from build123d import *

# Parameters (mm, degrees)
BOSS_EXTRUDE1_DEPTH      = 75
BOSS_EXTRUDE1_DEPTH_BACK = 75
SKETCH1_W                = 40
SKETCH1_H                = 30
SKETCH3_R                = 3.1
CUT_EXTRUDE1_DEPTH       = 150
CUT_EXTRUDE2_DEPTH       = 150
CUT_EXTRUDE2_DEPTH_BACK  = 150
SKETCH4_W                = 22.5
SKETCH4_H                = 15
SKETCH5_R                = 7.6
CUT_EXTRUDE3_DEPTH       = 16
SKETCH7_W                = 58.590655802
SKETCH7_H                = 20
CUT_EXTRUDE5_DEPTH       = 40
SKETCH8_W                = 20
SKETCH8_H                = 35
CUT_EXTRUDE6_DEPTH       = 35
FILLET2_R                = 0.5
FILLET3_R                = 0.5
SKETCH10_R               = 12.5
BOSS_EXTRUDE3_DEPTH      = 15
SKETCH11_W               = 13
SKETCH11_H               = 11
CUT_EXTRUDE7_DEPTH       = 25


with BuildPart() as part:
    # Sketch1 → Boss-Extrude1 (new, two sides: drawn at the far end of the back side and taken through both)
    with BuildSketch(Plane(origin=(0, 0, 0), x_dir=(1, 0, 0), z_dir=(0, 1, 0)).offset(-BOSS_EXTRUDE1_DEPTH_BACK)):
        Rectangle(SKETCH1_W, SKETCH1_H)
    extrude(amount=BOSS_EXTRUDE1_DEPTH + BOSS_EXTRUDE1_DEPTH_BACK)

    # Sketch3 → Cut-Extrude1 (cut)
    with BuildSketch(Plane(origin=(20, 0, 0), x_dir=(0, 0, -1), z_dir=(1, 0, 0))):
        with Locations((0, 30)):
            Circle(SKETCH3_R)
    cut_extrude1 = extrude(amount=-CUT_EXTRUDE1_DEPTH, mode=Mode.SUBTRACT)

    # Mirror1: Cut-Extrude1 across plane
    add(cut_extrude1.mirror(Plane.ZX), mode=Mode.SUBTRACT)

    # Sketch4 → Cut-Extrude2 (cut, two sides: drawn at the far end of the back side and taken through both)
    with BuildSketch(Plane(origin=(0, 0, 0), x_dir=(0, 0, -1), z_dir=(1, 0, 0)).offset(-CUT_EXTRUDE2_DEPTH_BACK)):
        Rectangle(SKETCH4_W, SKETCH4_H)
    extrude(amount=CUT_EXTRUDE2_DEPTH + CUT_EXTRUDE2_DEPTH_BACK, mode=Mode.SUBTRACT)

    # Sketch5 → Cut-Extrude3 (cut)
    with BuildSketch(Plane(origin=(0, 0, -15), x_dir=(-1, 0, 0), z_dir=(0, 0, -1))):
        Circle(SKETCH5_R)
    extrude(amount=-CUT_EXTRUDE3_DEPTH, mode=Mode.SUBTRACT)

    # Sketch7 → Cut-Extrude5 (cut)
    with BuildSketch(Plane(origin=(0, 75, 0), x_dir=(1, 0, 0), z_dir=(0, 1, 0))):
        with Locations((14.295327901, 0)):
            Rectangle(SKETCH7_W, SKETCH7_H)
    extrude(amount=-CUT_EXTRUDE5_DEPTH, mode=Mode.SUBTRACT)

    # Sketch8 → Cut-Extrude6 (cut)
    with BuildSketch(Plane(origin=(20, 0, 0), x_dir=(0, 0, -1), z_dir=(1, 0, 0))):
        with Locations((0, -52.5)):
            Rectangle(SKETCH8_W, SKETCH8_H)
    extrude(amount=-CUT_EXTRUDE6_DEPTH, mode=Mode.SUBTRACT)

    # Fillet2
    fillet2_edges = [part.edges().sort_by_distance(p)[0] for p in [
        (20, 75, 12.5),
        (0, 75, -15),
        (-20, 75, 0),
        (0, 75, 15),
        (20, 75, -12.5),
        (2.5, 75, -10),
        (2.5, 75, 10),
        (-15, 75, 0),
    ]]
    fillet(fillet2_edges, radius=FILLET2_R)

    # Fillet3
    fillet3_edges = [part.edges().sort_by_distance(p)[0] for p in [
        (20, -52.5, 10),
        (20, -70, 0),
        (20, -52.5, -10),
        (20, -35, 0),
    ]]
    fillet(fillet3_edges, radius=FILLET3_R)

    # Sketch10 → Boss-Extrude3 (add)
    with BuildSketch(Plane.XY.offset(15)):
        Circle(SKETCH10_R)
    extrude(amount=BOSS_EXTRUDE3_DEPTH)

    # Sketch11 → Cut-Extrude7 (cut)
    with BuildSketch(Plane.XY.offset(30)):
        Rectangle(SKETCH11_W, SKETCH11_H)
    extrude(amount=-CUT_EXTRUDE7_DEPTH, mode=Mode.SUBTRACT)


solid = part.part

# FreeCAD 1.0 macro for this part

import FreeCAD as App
import Part
import Sketcher
from FreeCAD import Vector


def edges_at(feature, points):
    """Names of the edges that pass closest to the given points."""
    edges = feature.Shape.Edges
    near = lambda p: min(range(len(edges)), key=lambda i: edges[i].distToShape(Part.Vertex(*p))[0])
    return sorted({f"Edge{near(p) + 1}" for p in points})

doc = App.newDocument("Part")
body = doc.addObject("PartDesign::Body", "Body")

sketch1 = body.newObject("Sketcher::SketchObject", "Sketch")
sketch1.AttachmentSupport = (doc.getObject("XZ_Plane"), [""])
sketch1.MapMode = "FlatFace"
sketch1.addGeometry([
    Part.LineSegment(Vector(-20, -15, 0), Vector(-20, 15, 0)),
    Part.LineSegment(Vector(-20, 15, 0), Vector(20, 15, 0)),
    Part.LineSegment(Vector(20, 15, 0), Vector(20, -15, 0)),
    Part.LineSegment(Vector(20, -15, 0), Vector(-20, -15, 0)),
], False)
sketch1.addConstraint([
    Sketcher.Constraint("Coincident", 0, 2, 1, 1),
    Sketcher.Constraint("Coincident", 1, 2, 2, 1),
    Sketcher.Constraint("Coincident", 2, 2, 3, 1),
    Sketcher.Constraint("Coincident", 3, 2, 0, 1),
    Sketcher.Constraint("Vertical", 0),
    Sketcher.Constraint("Horizontal", 1),
    Sketcher.Constraint("Vertical", 2),
    Sketcher.Constraint("Horizontal", 3),
    Sketcher.Constraint("Symmetric", 0, 2, 2, 2, -1, 1),
    Sketcher.Constraint("DistanceX", 1, 1, 1, 2, 40.0),
    Sketcher.Constraint("DistanceY", 0, 1, 0, 2, 30.0),
])
pad1 = body.newObject("PartDesign::Pad", "Pad")
pad1.Profile = sketch1
pad1.Type = "TwoLengths"
pad1.Length = 75
pad1.Length2 = 75
pad1.Reversed = True

sketch2 = body.newObject("Sketcher::SketchObject", "Sketch001")
sketch2.AttachmentSupport = (doc.getObject("YZ_Plane"), [""])
sketch2.MapMode = "FlatFace"
sketch2.AttachmentOffset = App.Placement(Vector(0, 0, 20), App.Rotation())
sketch2.addGeometry(Part.Circle(Vector(30, 0, 0), Vector(0, 0, 1), 3.1), False)
sketch2.addConstraint([
    Sketcher.Constraint("PointOnObject", 0, 3, -1),
    Sketcher.Constraint("Diameter", 0, 6.2),
    Sketcher.Constraint("DistanceX", -1, 1, 0, 3, 30.0),
])
pocket1 = body.newObject("PartDesign::Pocket", "Pocket")
pocket1.Profile = sketch2
pocket1.Length = 150
doc.recompute()

mirrored = body.newObject("PartDesign::Mirrored", "Mirrored")
mirrored.Originals = [pocket1]
mirrored.MirrorPlane = (doc.getObject("XZ_Plane"), [""])
body.Tip = mirrored

sketch3 = body.newObject("Sketcher::SketchObject", "Sketch002")
sketch3.AttachmentSupport = (doc.getObject("YZ_Plane"), [""])
sketch3.MapMode = "FlatFace"
sketch3.addGeometry([
    Part.LineSegment(Vector(8, 11, 0), Vector(-8, 11, 0)),
    Part.LineSegment(Vector(-8, 11, 0), Vector(-8, -11, 0)),
    Part.LineSegment(Vector(-8, -11, 0), Vector(8, -11, 0)),
    Part.LineSegment(Vector(8, -11, 0), Vector(8, 11, 0)),
], False)
sketch3.addConstraint([
    Sketcher.Constraint("Coincident", 0, 2, 1, 1),
    Sketcher.Constraint("Coincident", 1, 2, 2, 1),
    Sketcher.Constraint("Coincident", 2, 2, 3, 1),
    Sketcher.Constraint("Coincident", 3, 2, 0, 1),
    Sketcher.Constraint("Horizontal", 0),
    Sketcher.Constraint("Vertical", 1),
    Sketcher.Constraint("Horizontal", 2),
    Sketcher.Constraint("Vertical", 3),
    Sketcher.Constraint("Symmetric", 0, 2, 2, 2, -1, 1),
    Sketcher.Constraint("DistanceX", 0, 2, 0, 1, 15.0),
    Sketcher.Constraint("DistanceY", 1, 2, 1, 1, 22.5),
])
pocket2 = body.newObject("PartDesign::Pocket", "Pocket001")
pocket2.Profile = sketch3
pocket2.Type = "ThroughAll"
pocket2.Midplane = True

sketch4 = body.newObject("Sketcher::SketchObject", "Sketch003")
sketch4.AttachmentSupport = (doc.getObject("XY_Plane"), [""])
sketch4.MapMode = "FlatFace"
sketch4.AttachmentOffset = App.Placement(Vector(0, 0, -15), App.Rotation())
sketch4.addGeometry(Part.Circle(Vector(0, 0, 0), Vector(0, 0, 1), 8), False)
sketch4.addConstraint([
    Sketcher.Constraint("Coincident", 0, 3, -1, 1),
    Sketcher.Constraint("Diameter", 0, 15.2),
])
pocket3 = body.newObject("PartDesign::Pocket", "Pocket002")
pocket3.Profile = sketch4
pocket3.Length = 16
pocket3.Reversed = True

sketch5 = body.newObject("Sketcher::SketchObject", "Sketch004")
sketch5.AttachmentSupport = (doc.getObject("XZ_Plane"), [""])
sketch5.MapMode = "FlatFace"
sketch5.AttachmentOffset = App.Placement(Vector(0, 0, -75), App.Rotation())
sketch5.addGeometry([
    Part.LineSegment(Vector(-15, -10, 0), Vector(-15, 10, 0)),
    Part.LineSegment(Vector(-15, 10, 0), Vector(44, 10, 0)),
    Part.LineSegment(Vector(44, 10, 0), Vector(44, -10, 0)),
    Part.LineSegment(Vector(44, -10, 0), Vector(-15, -10, 0)),
], False)
sketch5.addConstraint([
    Sketcher.Constraint("Coincident", 0, 2, 1, 1),
    Sketcher.Constraint("Coincident", 1, 2, 2, 1),
    Sketcher.Constraint("Coincident", 2, 2, 3, 1),
    Sketcher.Constraint("Coincident", 3, 2, 0, 1),
    Sketcher.Constraint("Vertical", 0),
    Sketcher.Constraint("Horizontal", 1),
    Sketcher.Constraint("Vertical", 2),
    Sketcher.Constraint("Horizontal", 3),
    Sketcher.Constraint("DistanceY", 0, 1, 0, 2, 20.0),
    Sketcher.Constraint("DistanceX", 0, 2, -1, 1, 15.0),
    Sketcher.Constraint("DistanceY", -1, 1, 0, 2, 10.0),
    Sketcher.Constraint("DistanceX", 1, 1, 1, 2, 58.590656),
])
pocket4 = body.newObject("PartDesign::Pocket", "Pocket003")
pocket4.Profile = sketch5
pocket4.Length = 40
pocket4.Reversed = True

sketch6 = body.newObject("Sketcher::SketchObject", "Sketch005")
sketch6.AttachmentSupport = (doc.getObject("YZ_Plane"), [""])
sketch6.MapMode = "FlatFace"
sketch6.AttachmentOffset = App.Placement(Vector(0, 0, 20), App.Rotation())
sketch6.addGeometry([
    Part.LineSegment(Vector(-35, 10, 0), Vector(-70, 10, 0)),
    Part.LineSegment(Vector(-70, 10, 0), Vector(-70, -10, 0)),
    Part.LineSegment(Vector(-70, -10, 0), Vector(-35, -10, 0)),
    Part.LineSegment(Vector(-35, -10, 0), Vector(-35, 10, 0)),
], False)
sketch6.addConstraint([
    Sketcher.Constraint("Coincident", 0, 2, 1, 1),
    Sketcher.Constraint("Coincident", 1, 2, 2, 1),
    Sketcher.Constraint("Coincident", 2, 2, 3, 1),
    Sketcher.Constraint("Coincident", 3, 2, 0, 1),
    Sketcher.Constraint("Horizontal", 0),
    Sketcher.Constraint("Vertical", 1),
    Sketcher.Constraint("Horizontal", 2),
    Sketcher.Constraint("Vertical", 3),
    Sketcher.Constraint("DistanceX", 0, 2, 0, 1, 35.0),
    Sketcher.Constraint("DistanceY", 1, 2, 1, 1, 20.0),
    Sketcher.Constraint("DistanceX", 0, 2, -1, 1, 70.0),
    Sketcher.Constraint("DistanceY", -1, 1, 0, 2, 10.0),
])
pocket5 = body.newObject("PartDesign::Pocket", "Pocket004")
pocket5.Profile = sketch6
pocket5.Length = 35
doc.recompute()

fillet = body.newObject("PartDesign::Fillet", "Fillet")
fillet.Base = (pocket5, edges_at(pocket5, [
    (20, 75, 12.5),
    (0, 75, -15),
    (-20, 75, 0),
    (0, 75, 15),
    (20, 75, -12.5),
    (2.5, 75, -10),
    (2.5, 75, 10),
    (-15, 75, 0),
]))
fillet.Radius = 0.5
doc.recompute()

fillet2 = body.newObject("PartDesign::Fillet", "Fillet001")
fillet2.Base = (fillet, edges_at(fillet, [
    (20, -52.5, 10),
    (20, -70, 0),
    (20, -52.5, -10),
    (20, -35, 0),
]))
fillet2.Radius = 0.5

sketch7 = body.newObject("Sketcher::SketchObject", "Sketch006")
sketch7.AttachmentSupport = (doc.getObject("XY_Plane"), [""])
sketch7.MapMode = "FlatFace"
sketch7.AttachmentOffset = App.Placement(Vector(0, 0, 15), App.Rotation())
sketch7.addGeometry(Part.Circle(Vector(0, 0, 0), Vector(0, 0, 1), 12), False)
sketch7.addConstraint([
    Sketcher.Constraint("Coincident", 0, 3, -1, 1),
    Sketcher.Constraint("Diameter", 0, 25.0),
])
pad2 = body.newObject("PartDesign::Pad", "Pad001")
pad2.Profile = sketch7
pad2.Length = 15

sketch8 = body.newObject("Sketcher::SketchObject", "Sketch007")
sketch8.AttachmentSupport = (doc.getObject("XY_Plane"), [""])
sketch8.MapMode = "FlatFace"
sketch8.AttachmentOffset = App.Placement(Vector(0, 0, 30), App.Rotation())
sketch8.addGeometry([
    Part.LineSegment(Vector(-6, 6, 0), Vector(-6, -6, 0)),
    Part.LineSegment(Vector(-6, -6, 0), Vector(6, -6, 0)),
    Part.LineSegment(Vector(6, -6, 0), Vector(6, 6, 0)),
    Part.LineSegment(Vector(6, 6, 0), Vector(-6, 6, 0)),
], False)
sketch8.addConstraint([
    Sketcher.Constraint("Coincident", 0, 2, 1, 1),
    Sketcher.Constraint("Coincident", 1, 2, 2, 1),
    Sketcher.Constraint("Coincident", 2, 2, 3, 1),
    Sketcher.Constraint("Coincident", 3, 2, 0, 1),
    Sketcher.Constraint("Vertical", 0),
    Sketcher.Constraint("Horizontal", 1),
    Sketcher.Constraint("Vertical", 2),
    Sketcher.Constraint("Horizontal", 3),
    Sketcher.Constraint("Symmetric", 0, 2, 2, 2, -1, 1),
    Sketcher.Constraint("DistanceX", 1, 1, 1, 2, 13.0),
    Sketcher.Constraint("DistanceY", 0, 2, 0, 1, 11.0),
])
pocket6 = body.newObject("PartDesign::Pocket", "Pocket005")
pocket6.Profile = sketch8
pocket6.Length = 25

doc.recompute()
